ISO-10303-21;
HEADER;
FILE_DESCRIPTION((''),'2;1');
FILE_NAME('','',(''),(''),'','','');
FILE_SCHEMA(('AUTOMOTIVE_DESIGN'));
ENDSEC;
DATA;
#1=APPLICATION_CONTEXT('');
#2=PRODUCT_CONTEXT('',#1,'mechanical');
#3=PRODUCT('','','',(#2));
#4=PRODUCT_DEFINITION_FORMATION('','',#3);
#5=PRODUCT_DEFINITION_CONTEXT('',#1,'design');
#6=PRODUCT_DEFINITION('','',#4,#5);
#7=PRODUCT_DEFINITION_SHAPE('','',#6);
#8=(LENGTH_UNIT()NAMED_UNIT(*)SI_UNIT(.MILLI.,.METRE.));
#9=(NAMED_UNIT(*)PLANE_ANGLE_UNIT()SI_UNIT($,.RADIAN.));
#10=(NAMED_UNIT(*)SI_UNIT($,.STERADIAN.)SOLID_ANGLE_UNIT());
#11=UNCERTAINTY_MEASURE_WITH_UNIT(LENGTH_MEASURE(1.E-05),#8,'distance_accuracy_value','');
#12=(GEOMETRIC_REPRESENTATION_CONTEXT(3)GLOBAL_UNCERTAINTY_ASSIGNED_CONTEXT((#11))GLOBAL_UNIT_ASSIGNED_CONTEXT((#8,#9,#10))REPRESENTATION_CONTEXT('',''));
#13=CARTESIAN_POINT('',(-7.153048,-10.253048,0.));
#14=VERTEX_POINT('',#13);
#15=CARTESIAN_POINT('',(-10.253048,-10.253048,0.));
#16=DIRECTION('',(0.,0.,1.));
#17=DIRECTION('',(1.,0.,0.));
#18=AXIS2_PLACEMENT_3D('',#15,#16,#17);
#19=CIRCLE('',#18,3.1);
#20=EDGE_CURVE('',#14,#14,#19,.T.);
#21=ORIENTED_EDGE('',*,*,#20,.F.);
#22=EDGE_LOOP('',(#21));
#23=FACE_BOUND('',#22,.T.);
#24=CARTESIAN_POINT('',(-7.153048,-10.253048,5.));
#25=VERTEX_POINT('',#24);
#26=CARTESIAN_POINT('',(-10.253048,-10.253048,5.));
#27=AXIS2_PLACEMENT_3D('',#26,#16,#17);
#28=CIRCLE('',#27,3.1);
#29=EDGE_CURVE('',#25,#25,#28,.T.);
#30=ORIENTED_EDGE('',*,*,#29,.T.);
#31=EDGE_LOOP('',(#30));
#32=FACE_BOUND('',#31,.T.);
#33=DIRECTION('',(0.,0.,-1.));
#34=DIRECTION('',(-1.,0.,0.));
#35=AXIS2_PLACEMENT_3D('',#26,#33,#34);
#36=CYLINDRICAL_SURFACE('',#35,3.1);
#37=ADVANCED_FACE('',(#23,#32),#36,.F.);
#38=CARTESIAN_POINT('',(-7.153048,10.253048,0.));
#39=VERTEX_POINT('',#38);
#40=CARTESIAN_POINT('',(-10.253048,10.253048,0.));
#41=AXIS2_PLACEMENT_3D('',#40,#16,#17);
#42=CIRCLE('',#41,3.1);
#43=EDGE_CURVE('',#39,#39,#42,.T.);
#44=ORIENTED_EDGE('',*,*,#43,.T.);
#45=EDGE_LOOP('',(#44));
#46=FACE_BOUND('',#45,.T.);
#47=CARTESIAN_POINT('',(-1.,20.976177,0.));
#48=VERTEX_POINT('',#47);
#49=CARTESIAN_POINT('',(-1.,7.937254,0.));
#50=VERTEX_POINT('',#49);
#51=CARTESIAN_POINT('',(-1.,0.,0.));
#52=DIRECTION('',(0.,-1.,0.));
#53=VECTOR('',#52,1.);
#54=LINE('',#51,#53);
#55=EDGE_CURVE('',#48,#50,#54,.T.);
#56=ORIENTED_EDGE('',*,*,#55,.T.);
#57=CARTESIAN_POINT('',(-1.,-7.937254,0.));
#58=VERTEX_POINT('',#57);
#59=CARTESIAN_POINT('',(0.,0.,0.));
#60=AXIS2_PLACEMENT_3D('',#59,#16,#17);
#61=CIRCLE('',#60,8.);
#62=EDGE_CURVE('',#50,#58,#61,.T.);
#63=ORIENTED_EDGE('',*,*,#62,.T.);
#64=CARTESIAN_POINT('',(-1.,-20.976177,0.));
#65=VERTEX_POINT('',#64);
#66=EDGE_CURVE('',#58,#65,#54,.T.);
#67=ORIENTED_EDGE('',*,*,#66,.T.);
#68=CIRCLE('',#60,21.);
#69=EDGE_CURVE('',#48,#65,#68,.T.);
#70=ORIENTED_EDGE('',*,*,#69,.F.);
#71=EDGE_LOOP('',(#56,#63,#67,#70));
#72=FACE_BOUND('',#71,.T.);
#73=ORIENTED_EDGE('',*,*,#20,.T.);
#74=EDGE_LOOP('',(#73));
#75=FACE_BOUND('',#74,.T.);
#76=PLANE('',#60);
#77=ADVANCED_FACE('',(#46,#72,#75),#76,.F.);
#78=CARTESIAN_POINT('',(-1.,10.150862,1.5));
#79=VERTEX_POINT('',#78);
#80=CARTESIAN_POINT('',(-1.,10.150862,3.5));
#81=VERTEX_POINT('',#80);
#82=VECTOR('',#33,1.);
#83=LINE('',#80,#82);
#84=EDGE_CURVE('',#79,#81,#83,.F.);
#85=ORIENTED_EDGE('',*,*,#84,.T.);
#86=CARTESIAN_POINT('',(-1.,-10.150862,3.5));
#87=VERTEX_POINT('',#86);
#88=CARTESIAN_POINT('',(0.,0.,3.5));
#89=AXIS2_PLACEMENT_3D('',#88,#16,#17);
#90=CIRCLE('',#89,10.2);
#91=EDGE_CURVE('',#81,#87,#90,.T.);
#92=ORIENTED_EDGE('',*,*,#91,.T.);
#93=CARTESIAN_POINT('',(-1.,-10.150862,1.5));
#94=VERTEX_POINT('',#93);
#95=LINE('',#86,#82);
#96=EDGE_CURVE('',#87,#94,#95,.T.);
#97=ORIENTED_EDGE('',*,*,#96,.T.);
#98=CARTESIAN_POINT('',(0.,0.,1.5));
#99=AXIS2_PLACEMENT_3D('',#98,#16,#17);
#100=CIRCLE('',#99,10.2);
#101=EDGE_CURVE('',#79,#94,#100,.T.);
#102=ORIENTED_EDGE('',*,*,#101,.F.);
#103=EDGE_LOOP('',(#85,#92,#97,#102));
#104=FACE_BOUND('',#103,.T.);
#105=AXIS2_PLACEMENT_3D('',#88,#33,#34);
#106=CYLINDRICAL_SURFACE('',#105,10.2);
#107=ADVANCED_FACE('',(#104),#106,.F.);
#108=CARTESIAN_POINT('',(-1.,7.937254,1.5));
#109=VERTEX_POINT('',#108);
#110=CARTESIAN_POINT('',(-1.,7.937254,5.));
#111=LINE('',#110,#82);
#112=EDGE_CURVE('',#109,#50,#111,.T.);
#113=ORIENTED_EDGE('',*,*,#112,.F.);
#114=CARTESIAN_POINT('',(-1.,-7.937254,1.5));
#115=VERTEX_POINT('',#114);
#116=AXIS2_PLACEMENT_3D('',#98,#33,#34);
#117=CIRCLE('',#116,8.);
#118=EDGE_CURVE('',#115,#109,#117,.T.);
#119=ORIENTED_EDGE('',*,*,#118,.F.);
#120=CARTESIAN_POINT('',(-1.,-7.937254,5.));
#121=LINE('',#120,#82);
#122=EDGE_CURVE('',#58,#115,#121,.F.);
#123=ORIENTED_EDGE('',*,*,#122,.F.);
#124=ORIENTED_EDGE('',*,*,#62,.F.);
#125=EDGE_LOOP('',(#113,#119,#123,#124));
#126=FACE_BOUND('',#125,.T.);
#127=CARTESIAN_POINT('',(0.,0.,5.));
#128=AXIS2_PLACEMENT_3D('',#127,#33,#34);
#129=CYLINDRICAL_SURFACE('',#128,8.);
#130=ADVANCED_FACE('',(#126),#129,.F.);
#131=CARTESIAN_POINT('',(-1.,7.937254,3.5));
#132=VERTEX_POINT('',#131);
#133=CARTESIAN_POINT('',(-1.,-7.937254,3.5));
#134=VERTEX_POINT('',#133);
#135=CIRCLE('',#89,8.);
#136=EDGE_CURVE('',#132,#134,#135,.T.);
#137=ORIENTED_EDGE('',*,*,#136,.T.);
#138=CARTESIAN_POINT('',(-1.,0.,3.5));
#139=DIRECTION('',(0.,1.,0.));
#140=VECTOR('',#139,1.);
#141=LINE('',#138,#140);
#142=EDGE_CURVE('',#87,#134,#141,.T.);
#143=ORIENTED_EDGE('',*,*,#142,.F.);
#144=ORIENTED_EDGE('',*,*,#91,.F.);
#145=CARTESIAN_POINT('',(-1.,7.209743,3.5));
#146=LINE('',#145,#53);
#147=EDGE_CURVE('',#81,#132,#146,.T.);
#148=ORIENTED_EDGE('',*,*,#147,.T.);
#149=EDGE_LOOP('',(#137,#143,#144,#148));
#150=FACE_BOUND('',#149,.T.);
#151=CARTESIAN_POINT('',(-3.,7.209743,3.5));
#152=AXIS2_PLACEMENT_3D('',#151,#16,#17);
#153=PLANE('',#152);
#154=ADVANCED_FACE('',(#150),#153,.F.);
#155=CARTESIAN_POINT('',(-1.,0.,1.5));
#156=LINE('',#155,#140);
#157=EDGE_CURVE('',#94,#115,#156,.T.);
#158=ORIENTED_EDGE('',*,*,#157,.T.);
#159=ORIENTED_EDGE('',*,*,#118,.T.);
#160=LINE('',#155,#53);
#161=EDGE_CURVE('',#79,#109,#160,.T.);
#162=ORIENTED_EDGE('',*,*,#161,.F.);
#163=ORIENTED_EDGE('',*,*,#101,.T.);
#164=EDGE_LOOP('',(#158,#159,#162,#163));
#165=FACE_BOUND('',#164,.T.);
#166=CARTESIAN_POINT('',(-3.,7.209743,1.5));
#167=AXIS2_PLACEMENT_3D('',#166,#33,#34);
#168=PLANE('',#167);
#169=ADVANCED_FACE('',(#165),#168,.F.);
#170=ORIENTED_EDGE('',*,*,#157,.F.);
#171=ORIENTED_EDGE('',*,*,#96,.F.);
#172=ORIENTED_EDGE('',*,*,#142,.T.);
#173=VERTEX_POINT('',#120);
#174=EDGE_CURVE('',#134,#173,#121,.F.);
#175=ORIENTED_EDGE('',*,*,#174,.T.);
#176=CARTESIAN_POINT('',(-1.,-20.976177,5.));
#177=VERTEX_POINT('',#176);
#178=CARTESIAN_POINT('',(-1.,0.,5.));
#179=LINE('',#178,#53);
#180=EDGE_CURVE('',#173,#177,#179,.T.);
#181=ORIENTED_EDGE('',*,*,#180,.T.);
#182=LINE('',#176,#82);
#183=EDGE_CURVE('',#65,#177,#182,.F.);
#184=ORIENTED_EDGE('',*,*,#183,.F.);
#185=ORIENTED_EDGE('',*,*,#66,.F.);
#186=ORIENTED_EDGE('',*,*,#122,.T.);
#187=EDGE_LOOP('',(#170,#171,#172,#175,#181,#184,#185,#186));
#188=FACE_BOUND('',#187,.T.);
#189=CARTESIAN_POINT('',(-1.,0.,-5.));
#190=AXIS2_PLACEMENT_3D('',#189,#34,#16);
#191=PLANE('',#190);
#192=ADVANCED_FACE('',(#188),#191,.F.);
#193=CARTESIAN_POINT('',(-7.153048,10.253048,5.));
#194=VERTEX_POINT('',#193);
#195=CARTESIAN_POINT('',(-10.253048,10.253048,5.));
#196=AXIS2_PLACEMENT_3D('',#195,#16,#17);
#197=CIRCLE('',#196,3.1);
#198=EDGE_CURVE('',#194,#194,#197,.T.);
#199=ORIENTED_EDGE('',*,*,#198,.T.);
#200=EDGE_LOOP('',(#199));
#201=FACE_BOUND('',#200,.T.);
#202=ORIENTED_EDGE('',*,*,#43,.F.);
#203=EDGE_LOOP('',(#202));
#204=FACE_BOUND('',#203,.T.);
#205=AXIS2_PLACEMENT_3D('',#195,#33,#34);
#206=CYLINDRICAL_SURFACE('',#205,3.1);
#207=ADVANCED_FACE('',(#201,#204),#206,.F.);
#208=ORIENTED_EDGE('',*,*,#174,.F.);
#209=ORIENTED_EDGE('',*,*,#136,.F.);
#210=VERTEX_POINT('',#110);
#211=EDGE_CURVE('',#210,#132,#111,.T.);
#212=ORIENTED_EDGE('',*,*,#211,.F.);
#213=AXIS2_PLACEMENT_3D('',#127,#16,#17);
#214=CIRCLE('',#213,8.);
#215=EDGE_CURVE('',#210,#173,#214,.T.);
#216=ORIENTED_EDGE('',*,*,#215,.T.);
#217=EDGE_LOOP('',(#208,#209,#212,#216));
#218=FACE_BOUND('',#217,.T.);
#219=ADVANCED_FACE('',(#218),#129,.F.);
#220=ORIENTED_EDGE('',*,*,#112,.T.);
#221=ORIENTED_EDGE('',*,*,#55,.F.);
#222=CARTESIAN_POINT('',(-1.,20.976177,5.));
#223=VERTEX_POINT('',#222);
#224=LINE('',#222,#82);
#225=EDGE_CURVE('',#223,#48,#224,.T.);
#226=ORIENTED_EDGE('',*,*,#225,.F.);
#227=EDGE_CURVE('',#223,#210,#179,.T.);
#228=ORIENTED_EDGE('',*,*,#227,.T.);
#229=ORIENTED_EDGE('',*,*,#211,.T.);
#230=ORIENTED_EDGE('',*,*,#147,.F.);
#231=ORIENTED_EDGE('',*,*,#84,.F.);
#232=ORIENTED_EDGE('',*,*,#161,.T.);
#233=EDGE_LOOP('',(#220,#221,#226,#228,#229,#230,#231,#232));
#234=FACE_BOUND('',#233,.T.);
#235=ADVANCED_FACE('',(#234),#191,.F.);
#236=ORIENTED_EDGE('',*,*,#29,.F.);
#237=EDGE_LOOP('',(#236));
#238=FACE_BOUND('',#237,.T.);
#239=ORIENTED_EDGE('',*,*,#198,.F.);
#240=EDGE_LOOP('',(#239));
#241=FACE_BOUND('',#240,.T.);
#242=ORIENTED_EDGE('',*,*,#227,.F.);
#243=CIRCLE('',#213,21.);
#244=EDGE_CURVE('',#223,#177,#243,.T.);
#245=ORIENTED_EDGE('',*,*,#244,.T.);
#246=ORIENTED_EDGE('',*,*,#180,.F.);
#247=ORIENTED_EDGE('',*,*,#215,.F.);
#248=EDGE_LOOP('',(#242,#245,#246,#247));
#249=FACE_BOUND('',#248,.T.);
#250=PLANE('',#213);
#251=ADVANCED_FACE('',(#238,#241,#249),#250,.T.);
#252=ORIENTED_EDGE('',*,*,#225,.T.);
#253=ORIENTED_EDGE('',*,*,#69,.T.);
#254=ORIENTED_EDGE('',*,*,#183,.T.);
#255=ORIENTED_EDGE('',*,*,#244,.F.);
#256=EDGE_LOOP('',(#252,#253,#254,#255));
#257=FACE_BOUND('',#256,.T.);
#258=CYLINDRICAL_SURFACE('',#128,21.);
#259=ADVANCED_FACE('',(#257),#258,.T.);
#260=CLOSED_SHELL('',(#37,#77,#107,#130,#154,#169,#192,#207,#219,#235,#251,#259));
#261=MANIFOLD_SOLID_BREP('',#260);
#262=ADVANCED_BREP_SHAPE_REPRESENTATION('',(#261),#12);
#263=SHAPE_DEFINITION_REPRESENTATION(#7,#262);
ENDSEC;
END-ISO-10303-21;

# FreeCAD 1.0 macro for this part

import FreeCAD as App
import Part
import Sketcher

V = App.Vector
Q = App.Units.Quantity

doc = App.newDocument("Part")
body = doc.addObject("PartDesign::Body", "Body")

# Sketch on XY plane
sketch1 = body.newObject("Sketcher::SketchObject", "Sketch")
sketch1.AttachmentSupport = (doc.getObject("XY_Plane"), [""])
sketch1.MapMode = "FlatFace"
sketch1.addGeometry([
    Part.Circle(V(0, 0, 0), V(0, 0, 1), 21),  # 0
    Part.Circle(V(-10.3, -10.3, 0), V(0, 0, 1), 3.1),  # 1
    Part.Circle(V(10.3, -10.3, 0), V(0, 0, 1), 3.1),  # 2
    Part.Circle(V(-10.3, 10.3, 0), V(0, 0, 1), 3.1),  # 3
    Part.Circle(V(0, 0, 0), V(0, 0, 1), 8),  # 4
    Part.Circle(V(10.3, 10.3, 0), V(0, 0, 1), 3.1),  # 5
], False)
sketch1.addConstraint([
    Sketcher.Constraint("Coincident", 0, 3, -1, 1),
    Sketcher.Constraint("Coincident", 4, 3, -1, 1),
    Sketcher.Constraint("Equal", 1, 2),
    Sketcher.Constraint("Equal", 2, 3),
    Sketcher.Constraint("Equal", 3, 5),
    Sketcher.Constraint("Symmetric", 2, 3, 3, 3, -1, 1),
    Sketcher.Constraint("Symmetric", 1, 3, 5, 3, -1, 1),
    Sketcher.Constraint("Symmetric", 1, 3, 2, 3, -2),
    Sketcher.Constraint("Diameter", 0, Q("42 mm")),
    Sketcher.Constraint("Diameter", 4, Q("16 mm")),
    Sketcher.Constraint("Diameter", 1, Q("6.2 mm")),
    Sketcher.Constraint("DistanceX", 1, 3, -1, 1, Q("10.253048 mm")),
    Sketcher.Constraint("DistanceY", 1, 3, -1, 1, Q("10.253048 mm")),
])
pad1 = body.newObject("PartDesign::Pad", "Pad")
pad1.Profile = sketch1
pad1.Length = 5

# Sketch on XY plane
sketch2 = body.newObject("Sketcher::SketchObject", "Sketch001")
sketch2.AttachmentSupport = (doc.getObject("XY_Plane"), [""])
sketch2.MapMode = "FlatFace"
sketch2.AttachmentOffset = App.Placement(V(0, 0, 5), App.Rotation())
sketch2.addGeometry([
    Part.LineSegment(V(-1, 24, 0), V(-1, -27, 0)),
    Part.LineSegment(V(-1, -27, 0), V(28, -27, 0)),
    Part.LineSegment(V(28, -27, 0), V(28, 24, 0)),
    Part.LineSegment(V(28, 24, 0), V(-1, 24, 0)),
], False)
sketch2.addConstraint([
    Sketcher.Constraint("Coincident", 0, 2, 1, 1),
    Sketcher.Constraint("Coincident", 1, 2, 2, 1),
    Sketcher.Constraint("Coincident", 2, 2, 3, 1),
    Sketcher.Constraint("Coincident", 3, 2, 0, 1),
    Sketcher.Constraint("Vertical", 0),
    Sketcher.Constraint("Horizontal", 1),
    Sketcher.Constraint("Vertical", 2),
    Sketcher.Constraint("Horizontal", 3),
    Sketcher.Constraint("DistanceX", 0, 2, -1, 1, Q("1 mm")),
    Sketcher.Constraint("DistanceY", 0, 2, 0, 1, Q("50.850801 mm")),
    Sketcher.Constraint("DistanceX", 1, 1, 1, 2, Q("28.759133 mm")),
    Sketcher.Constraint("DistanceY", 0, 2, -1, 1, Q("27.308763 mm")),
])
pocket1 = body.newObject("PartDesign::Pocket", "Pocket")
pocket1.Profile = sketch2
pocket1.Length = 10

# Sketch on YZ plane
sketch3 = body.newObject("Sketcher::SketchObject", "Sketch002")
sketch3.AttachmentSupport = (doc.getObject("YZ_Plane"), [""])
sketch3.MapMode = "FlatFace"
sketch3.AttachmentOffset = App.Placement(V(0, 0, -1), App.Rotation())
sketch3.addGeometry([
    Part.LineSegment(V(8.7, 3.5, 0), V(7.2, 3.5, 0)),
    Part.LineSegment(V(7.2, 3.5, 0), V(7.2, 1.5, 0)),
    Part.LineSegment(V(7.2, 1.5, 0), V(8.7, 1.5, 0)),
    Part.LineSegment(V(8.7, 1.5, 0), V(8.7, 3.5, 0)),
], False)
sketch3.addConstraint([
    Sketcher.Constraint("Coincident", 0, 2, 1, 1),
    Sketcher.Constraint("Coincident", 1, 2, 2, 1),
    Sketcher.Constraint("Coincident", 2, 2, 3, 1),
    Sketcher.Constraint("Coincident", 3, 2, 0, 1),
    Sketcher.Constraint("Horizontal", 0),
    Sketcher.Constraint("Vertical", 1),
    Sketcher.Constraint("Horizontal", 2),
    Sketcher.Constraint("Vertical", 3),
    Sketcher.Constraint("DistanceY", 1, 2, 1, 1, Q("2 mm")),
    Sketcher.Constraint("DistanceY", -1, 1, 0, 2, Q("3.5 mm")),
    Sketcher.Constraint("DistanceX", 0, 2, 0, 1, Q("1.455023 mm")),
    Sketcher.Constraint("DistanceX", -1, 1, 0, 2, Q("7.209743 mm")),
])
pocket2 = body.newObject("PartDesign::Pocket", "Pocket001")
pocket2.Profile = sketch3
pocket2.Length = 2

# Sketch on XY plane
sketch4 = body.newObject("Sketcher::SketchObject", "Sketch003")
sketch4.AttachmentSupport = (doc.getObject("XY_Plane"), [""])
sketch4.MapMode = "FlatFace"
sketch4.AttachmentOffset = App.Placement(V(0, 0, 1.5), App.Rotation())
sketch4.addGeometry(Part.Circle(V(0, 0, 0), V(0, 0, 1), 10), False)
sketch4.addConstraint([
    Sketcher.Constraint("Coincident", 0, 3, -1, 1),
    Sketcher.Constraint("Diameter", 0, Q("20.4 mm")),
])
pocket3 = body.newObject("PartDesign::Pocket", "Pocket002")
pocket3.Profile = sketch4
pocket3.Length = 2
pocket3.Reversed = True

doc.recompute()
